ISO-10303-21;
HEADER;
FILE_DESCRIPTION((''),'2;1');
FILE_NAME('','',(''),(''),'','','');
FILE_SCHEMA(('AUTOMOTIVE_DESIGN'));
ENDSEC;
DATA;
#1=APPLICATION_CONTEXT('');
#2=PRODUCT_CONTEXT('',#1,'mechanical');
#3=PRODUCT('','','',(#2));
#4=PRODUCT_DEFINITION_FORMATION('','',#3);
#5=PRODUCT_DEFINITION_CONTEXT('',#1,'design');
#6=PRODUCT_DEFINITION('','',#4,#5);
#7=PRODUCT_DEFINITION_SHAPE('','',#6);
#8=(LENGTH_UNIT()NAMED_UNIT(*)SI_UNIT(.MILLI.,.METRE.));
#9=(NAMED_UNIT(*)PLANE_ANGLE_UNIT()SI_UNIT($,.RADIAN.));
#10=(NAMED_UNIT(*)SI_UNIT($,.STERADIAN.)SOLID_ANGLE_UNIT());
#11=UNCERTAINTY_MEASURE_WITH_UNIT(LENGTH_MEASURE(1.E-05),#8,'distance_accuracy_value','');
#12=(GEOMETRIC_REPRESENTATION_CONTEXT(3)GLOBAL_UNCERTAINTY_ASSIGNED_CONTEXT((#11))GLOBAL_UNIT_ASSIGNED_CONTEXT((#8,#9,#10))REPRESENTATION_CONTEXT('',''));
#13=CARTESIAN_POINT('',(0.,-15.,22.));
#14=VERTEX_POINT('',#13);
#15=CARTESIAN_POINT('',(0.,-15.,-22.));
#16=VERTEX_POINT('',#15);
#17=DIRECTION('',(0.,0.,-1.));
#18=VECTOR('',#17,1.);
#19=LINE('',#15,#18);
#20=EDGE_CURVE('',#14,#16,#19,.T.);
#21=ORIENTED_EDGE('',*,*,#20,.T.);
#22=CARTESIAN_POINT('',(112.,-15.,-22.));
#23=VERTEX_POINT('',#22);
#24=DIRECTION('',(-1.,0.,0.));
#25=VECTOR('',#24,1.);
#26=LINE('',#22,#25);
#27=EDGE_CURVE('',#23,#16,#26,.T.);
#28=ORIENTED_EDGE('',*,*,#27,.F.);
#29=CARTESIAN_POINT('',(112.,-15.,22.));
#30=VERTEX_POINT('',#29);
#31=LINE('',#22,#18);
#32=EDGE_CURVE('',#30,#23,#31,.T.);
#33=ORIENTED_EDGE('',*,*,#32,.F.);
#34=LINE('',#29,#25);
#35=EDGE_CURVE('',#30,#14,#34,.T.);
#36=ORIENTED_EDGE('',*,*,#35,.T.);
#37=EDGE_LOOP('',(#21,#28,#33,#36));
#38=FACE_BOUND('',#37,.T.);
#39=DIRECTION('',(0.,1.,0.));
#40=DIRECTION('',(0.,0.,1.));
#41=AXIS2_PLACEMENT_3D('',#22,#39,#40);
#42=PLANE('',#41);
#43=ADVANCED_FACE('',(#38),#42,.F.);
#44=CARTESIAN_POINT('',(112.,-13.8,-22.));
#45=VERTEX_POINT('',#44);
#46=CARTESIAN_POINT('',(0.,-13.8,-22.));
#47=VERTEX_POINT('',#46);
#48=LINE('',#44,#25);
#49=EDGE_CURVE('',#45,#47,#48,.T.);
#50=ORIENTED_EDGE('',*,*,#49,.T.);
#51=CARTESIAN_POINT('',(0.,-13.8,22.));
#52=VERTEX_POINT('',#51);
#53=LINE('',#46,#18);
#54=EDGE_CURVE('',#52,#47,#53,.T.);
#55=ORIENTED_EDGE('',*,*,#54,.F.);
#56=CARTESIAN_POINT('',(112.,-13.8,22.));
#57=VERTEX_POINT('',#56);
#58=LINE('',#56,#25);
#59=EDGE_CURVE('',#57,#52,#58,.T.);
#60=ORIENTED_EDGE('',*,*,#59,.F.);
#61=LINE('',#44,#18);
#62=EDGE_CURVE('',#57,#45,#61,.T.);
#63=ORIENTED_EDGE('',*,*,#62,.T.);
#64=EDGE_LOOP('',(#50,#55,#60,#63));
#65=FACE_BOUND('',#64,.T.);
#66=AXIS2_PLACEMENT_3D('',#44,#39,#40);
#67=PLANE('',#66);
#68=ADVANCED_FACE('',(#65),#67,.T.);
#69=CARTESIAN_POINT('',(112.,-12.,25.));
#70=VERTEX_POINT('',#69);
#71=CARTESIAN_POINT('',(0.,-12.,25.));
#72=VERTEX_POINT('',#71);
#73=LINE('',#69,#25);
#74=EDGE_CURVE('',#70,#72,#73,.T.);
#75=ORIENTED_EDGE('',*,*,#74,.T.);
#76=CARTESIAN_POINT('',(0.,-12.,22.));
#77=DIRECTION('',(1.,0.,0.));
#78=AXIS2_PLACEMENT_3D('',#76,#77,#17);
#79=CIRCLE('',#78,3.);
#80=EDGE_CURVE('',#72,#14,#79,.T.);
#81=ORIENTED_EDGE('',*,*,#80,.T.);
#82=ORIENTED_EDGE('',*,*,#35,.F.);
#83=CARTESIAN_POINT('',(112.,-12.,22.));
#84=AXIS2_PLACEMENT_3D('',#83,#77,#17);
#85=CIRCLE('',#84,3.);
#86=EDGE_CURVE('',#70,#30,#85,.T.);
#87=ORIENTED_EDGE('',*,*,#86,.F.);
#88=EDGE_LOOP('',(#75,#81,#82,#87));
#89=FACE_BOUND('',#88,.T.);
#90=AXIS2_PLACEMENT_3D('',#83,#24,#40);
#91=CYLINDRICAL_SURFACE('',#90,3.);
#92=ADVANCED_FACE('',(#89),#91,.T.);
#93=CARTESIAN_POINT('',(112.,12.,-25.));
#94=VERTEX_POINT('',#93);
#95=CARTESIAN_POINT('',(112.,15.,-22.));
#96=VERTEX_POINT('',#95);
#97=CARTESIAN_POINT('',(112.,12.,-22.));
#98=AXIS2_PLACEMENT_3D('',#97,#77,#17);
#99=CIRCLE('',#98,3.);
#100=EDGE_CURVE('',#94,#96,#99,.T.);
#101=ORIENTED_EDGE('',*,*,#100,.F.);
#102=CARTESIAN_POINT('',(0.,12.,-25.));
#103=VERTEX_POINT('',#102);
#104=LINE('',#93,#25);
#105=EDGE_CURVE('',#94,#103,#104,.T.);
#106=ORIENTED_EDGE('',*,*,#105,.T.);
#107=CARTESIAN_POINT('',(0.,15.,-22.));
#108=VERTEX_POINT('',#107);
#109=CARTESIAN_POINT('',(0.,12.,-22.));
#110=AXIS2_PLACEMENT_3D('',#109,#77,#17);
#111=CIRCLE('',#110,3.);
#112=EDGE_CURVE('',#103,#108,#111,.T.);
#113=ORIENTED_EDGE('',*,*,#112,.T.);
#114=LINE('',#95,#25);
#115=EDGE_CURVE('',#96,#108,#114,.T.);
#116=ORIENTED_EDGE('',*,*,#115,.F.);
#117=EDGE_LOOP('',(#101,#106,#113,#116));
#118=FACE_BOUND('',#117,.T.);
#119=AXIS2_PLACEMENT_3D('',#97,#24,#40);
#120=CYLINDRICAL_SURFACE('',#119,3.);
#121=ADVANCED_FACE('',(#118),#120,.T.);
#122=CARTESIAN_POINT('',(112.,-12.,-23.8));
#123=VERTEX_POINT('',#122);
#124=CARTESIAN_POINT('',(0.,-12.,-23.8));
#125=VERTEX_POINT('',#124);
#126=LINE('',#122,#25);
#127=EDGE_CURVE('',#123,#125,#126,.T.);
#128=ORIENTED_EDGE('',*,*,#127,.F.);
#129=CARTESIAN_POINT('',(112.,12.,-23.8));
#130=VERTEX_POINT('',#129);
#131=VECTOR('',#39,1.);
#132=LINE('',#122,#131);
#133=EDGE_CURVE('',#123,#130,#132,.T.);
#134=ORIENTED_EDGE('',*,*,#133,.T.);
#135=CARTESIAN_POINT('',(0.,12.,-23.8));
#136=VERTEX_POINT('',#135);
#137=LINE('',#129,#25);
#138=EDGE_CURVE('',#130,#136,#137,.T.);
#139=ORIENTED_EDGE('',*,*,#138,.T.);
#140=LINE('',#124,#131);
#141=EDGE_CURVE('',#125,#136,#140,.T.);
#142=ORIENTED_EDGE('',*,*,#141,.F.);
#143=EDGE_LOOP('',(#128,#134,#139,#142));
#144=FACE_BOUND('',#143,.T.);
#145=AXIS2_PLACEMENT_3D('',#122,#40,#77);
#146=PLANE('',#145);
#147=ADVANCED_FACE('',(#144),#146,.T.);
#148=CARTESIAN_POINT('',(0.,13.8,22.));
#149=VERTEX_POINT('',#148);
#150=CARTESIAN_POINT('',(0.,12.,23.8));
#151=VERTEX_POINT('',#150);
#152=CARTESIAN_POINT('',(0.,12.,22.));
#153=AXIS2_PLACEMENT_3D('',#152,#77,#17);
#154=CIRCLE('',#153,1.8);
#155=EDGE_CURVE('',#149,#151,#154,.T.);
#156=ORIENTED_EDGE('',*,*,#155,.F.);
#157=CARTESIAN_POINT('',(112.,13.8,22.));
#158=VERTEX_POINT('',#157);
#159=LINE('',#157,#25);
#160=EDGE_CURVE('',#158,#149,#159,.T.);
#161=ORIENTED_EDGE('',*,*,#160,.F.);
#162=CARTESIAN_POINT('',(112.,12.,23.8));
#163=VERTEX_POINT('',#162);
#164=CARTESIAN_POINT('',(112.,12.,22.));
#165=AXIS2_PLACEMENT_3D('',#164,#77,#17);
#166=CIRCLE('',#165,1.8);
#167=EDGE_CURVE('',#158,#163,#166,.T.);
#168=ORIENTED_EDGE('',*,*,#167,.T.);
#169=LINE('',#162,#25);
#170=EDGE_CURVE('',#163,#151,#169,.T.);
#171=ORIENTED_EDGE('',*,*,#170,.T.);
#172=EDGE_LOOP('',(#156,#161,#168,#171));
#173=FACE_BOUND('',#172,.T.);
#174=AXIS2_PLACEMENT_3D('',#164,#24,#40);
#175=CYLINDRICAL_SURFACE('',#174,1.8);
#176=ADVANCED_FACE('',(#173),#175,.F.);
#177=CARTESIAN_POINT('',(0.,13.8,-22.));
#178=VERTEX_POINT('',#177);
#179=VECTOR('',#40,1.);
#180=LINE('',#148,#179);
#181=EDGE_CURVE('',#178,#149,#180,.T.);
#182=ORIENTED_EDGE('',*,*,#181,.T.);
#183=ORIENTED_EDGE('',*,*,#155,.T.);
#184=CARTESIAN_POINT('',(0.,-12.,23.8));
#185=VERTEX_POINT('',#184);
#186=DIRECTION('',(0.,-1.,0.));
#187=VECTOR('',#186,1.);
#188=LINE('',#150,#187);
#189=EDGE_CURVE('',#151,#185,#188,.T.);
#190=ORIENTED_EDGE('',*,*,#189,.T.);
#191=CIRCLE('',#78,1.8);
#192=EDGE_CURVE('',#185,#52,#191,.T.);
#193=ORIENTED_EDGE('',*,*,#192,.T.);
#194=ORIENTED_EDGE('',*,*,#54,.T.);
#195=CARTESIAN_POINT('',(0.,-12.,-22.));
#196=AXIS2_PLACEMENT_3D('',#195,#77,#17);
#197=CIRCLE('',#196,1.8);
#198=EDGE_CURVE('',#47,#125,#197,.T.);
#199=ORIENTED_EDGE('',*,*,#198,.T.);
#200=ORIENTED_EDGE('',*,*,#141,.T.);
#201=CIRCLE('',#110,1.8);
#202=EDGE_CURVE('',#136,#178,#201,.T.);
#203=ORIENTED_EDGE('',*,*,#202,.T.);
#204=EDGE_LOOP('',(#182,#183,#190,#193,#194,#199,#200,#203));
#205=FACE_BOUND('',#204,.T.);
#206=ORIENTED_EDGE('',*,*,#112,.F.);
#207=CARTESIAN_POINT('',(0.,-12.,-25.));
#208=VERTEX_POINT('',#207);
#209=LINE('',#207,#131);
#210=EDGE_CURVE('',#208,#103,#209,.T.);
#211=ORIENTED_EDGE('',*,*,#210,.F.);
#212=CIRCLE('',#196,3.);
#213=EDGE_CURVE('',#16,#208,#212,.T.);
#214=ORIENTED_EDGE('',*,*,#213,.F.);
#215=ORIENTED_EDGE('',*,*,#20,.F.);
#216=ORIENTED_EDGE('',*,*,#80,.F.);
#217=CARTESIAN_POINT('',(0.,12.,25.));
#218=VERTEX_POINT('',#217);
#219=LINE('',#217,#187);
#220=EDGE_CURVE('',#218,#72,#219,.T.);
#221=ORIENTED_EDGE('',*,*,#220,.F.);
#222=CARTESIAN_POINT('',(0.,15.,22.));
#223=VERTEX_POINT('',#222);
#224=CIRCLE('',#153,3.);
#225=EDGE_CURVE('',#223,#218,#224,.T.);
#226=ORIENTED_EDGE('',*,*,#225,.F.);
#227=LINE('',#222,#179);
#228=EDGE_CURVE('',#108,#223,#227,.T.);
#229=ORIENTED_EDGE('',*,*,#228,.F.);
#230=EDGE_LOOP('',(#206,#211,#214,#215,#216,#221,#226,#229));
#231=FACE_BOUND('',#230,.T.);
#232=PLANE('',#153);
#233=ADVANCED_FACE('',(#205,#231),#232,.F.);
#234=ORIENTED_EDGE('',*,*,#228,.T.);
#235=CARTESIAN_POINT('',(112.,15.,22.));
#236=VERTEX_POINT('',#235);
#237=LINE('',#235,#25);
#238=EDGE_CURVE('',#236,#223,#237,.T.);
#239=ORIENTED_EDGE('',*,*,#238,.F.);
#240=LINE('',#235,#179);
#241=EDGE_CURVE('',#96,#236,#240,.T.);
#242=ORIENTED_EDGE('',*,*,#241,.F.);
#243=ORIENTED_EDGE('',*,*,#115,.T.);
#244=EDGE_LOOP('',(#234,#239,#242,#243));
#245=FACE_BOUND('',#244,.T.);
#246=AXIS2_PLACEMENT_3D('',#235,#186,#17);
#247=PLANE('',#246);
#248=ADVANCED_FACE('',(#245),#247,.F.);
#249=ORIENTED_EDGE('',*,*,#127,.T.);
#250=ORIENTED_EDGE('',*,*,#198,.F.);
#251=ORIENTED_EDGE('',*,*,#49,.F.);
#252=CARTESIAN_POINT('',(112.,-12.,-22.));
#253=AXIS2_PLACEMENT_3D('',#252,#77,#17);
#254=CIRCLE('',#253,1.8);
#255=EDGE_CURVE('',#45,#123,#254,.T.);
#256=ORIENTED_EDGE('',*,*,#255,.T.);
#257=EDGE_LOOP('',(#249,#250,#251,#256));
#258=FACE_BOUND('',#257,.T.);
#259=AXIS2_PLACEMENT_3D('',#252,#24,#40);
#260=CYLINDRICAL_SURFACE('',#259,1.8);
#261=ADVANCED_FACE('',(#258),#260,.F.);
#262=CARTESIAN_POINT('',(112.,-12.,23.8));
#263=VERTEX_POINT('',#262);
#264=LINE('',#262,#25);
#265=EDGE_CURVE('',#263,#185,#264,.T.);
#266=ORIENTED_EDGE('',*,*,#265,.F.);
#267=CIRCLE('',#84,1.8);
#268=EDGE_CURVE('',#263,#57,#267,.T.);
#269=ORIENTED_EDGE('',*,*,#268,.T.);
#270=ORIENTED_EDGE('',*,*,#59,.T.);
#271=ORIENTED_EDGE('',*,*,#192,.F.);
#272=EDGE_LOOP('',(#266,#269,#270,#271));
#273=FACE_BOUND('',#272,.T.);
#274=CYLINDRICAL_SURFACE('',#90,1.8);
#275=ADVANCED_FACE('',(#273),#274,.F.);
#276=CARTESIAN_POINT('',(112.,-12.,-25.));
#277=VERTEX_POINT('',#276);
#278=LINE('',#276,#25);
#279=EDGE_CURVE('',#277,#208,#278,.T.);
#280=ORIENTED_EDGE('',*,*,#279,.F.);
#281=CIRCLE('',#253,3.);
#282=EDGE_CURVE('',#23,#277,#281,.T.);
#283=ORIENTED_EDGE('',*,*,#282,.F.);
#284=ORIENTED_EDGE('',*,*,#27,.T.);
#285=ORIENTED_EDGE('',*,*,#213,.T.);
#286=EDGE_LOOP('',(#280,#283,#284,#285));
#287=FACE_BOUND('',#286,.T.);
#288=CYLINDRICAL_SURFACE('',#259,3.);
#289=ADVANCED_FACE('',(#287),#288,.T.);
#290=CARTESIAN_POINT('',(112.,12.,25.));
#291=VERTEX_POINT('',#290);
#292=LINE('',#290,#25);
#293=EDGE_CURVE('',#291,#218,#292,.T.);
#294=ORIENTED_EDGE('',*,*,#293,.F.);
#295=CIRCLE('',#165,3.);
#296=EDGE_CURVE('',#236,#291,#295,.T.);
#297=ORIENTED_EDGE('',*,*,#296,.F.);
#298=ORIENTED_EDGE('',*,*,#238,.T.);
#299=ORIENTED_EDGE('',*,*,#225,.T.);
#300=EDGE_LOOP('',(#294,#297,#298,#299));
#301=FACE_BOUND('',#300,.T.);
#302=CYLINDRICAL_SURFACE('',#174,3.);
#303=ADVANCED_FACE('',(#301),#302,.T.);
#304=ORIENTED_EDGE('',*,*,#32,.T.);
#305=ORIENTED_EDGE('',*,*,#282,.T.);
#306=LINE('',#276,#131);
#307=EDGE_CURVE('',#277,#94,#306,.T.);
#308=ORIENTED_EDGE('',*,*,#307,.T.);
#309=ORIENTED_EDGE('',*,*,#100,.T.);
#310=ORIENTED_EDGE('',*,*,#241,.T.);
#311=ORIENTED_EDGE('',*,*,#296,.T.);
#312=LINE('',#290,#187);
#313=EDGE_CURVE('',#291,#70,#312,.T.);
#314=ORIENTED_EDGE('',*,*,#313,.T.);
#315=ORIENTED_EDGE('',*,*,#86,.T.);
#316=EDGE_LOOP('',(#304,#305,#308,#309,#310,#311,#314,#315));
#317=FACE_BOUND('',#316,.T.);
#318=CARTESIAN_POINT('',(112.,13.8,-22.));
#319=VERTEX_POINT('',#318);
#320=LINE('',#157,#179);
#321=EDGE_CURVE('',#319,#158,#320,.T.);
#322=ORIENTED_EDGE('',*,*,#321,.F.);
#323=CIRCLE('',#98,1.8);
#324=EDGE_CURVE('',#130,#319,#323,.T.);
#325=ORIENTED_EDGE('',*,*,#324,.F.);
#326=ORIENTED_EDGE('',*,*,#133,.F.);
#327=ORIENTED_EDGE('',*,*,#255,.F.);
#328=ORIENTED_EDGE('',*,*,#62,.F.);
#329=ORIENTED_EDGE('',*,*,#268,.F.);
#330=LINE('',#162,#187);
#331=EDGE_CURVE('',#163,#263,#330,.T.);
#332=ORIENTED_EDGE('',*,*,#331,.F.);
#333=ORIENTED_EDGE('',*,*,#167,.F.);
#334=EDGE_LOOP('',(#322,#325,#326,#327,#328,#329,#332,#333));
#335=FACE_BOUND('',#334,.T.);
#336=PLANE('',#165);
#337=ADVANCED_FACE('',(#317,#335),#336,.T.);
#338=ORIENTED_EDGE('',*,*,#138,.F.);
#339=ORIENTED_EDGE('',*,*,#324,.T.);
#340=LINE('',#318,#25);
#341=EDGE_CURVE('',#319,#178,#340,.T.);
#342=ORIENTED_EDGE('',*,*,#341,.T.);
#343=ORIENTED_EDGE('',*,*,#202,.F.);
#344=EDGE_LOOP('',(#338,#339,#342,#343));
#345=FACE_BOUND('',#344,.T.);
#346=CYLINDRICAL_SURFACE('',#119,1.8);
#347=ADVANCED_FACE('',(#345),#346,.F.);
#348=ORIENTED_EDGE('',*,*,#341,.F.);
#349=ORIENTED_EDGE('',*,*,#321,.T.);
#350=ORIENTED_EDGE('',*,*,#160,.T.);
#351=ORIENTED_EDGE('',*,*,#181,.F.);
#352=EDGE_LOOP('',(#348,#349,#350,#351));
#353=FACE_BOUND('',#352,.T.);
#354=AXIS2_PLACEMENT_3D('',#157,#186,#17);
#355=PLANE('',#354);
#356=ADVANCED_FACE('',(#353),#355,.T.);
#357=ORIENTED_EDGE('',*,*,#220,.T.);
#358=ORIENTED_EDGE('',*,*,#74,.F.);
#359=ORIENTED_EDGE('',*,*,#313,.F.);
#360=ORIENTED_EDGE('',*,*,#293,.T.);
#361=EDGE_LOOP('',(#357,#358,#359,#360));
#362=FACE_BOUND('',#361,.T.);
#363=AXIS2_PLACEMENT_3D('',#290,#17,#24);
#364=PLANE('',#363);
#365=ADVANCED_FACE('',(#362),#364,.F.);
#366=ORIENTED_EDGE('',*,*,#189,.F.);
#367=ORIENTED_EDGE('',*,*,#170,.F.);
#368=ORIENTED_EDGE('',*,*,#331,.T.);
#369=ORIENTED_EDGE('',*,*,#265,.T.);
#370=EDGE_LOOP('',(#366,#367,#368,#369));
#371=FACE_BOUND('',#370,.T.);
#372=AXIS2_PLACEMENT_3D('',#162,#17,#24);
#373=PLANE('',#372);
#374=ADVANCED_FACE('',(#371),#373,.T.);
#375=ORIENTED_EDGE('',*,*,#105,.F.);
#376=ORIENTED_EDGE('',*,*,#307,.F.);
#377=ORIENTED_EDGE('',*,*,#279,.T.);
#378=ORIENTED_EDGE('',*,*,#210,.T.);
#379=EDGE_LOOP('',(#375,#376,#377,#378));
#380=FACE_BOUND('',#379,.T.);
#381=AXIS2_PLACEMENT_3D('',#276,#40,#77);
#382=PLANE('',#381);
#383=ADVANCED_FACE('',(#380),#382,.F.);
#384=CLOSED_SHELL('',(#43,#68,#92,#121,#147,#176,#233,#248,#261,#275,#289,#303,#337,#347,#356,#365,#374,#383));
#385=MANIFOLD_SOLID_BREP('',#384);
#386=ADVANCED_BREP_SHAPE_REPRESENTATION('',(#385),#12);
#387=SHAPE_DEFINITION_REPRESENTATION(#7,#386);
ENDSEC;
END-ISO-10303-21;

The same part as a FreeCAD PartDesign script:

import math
import FreeCAD as App
import Part
import Sketcher

V = App.Vector
Q = App.Units.Quantity

doc = App.newDocument("Part")
body = doc.addObject("PartDesign::Body", "Body")

sketch1 = body.newObject("Sketcher::SketchObject", "Sketch")
sketch1.AttachmentSupport = (doc.getObject("YZ_Plane"), [""])
sketch1.MapMode = "FlatFace"
sketch1.addGeometry([
    Part.LineSegment(V(-12, -25, 0), V(12, -25, 0)),
    Part.ArcOfCircle(Part.Circle(V(12, -22, 0), V(0, 0, 1), 3), math.radians(-90), math.radians(0)),
    Part.LineSegment(V(15, -22, 0), V(15, 22, 0)),
    Part.ArcOfCircle(Part.Circle(V(12, 22, 0), V(0, 0, 1), 3), math.radians(0), math.radians(90)),
    Part.LineSegment(V(12, 25, 0), V(-12, 25, 0)),
    Part.ArcOfCircle(Part.Circle(V(-12, 22, 0), V(0, 0, 1), 3), math.radians(90), math.radians(180)),
    Part.LineSegment(V(-15, 22, 0), V(-15, -22, 0)),
    Part.ArcOfCircle(Part.Circle(V(-12, -22, 0), V(0, 0, 1), 3), math.radians(180), math.radians(270)),
    Part.LineSegment(V(12, -23.8, 0), V(-12, -23.8, 0)),
    Part.ArcOfCircle(Part.Circle(V(-12, -22, 0), V(0, 0, 1), 1.8), math.radians(180), math.radians(270)),
    Part.LineSegment(V(-13.8, -22, 0), V(-13.8, 22, 0)),
    Part.ArcOfCircle(Part.Circle(V(-12, 22, 0), V(0, 0, 1), 1.8), math.radians(90), math.radians(180)),
    Part.LineSegment(V(-12, 23.8, 0), V(12, 23.8, 0)),
    Part.ArcOfCircle(Part.Circle(V(12, 22, 0), V(0, 0, 1), 1.8), math.radians(0), math.radians(90)),
    Part.LineSegment(V(13.8, 22, 0), V(13.8, -22, 0)),
    Part.ArcOfCircle(Part.Circle(V(12, -22, 0), V(0, 0, 1), 1.8), math.radians(-90), math.radians(0)),
], False)
sketch1.addConstraint([
    Sketcher.Constraint("Tangent", 0, 2, 1, 1),
    Sketcher.Constraint("Tangent", 1, 2, 2, 1),
    Sketcher.Constraint("Tangent", 2, 2, 3, 1),
    Sketcher.Constraint("Tangent", 3, 2, 4, 1),
    Sketcher.Constraint("Tangent", 4, 2, 5, 1),
    Sketcher.Constraint("Tangent", 5, 2, 6, 1),
    Sketcher.Constraint("Tangent", 6, 2, 7, 1),
    Sketcher.Constraint("Tangent", 7, 2, 0, 1),
    Sketcher.Constraint("Tangent", 8, 2, 9, 2),
    Sketcher.Constraint("Tangent", 9, 1, 10, 1),
    Sketcher.Constraint("Tangent", 10, 2, 11, 2),
    Sketcher.Constraint("Tangent", 11, 1, 12, 1),
    Sketcher.Constraint("Tangent", 12, 2, 13, 2),
    Sketcher.Constraint("Tangent", 13, 1, 14, 1),
    Sketcher.Constraint("Tangent", 14, 2, 15, 2),
    Sketcher.Constraint("Tangent", 15, 1, 8, 1),
    Sketcher.Constraint("Horizontal", 0),
    Sketcher.Constraint("Vertical", 2),
    Sketcher.Constraint("Horizontal", 4),
    Sketcher.Constraint("Vertical", 6),
    Sketcher.Constraint("Horizontal", 8),
    Sketcher.Constraint("Vertical", 10),
    Sketcher.Constraint("Horizontal", 12),
    Sketcher.Constraint("Vertical", 14),
    Sketcher.Constraint("Coincident", 9, 3, 7, 3),
    Sketcher.Constraint("Coincident", 11, 3, 5, 3),
    Sketcher.Constraint("Coincident", 13, 3, 3, 3),
    Sketcher.Constraint("Equal", 1, 3),
    Sketcher.Constraint("Equal", 3, 5),
    Sketcher.Constraint("Equal", 5, 7),
    Sketcher.Constraint("Equal", 13, 15),
    Sketcher.Constraint("Symmetric", 1, 3, 5, 3, -1, 1),
    Sketcher.Constraint("Radius", 1, Q("3 mm")),
    Sketcher.Constraint("Radius", 9, Q("1.8 mm")),
    Sketcher.Constraint("DistanceX", 0, 1, 0, 2, Q("24 mm")),
    Sketcher.Constraint("DistanceY", 2, 1, 2, 2, Q("44 mm")),
])
pad1 = body.newObject("PartDesign::Pad", "Pad")
pad1.Profile = sketch1
pad1.Length = 112

doc.recompute()
